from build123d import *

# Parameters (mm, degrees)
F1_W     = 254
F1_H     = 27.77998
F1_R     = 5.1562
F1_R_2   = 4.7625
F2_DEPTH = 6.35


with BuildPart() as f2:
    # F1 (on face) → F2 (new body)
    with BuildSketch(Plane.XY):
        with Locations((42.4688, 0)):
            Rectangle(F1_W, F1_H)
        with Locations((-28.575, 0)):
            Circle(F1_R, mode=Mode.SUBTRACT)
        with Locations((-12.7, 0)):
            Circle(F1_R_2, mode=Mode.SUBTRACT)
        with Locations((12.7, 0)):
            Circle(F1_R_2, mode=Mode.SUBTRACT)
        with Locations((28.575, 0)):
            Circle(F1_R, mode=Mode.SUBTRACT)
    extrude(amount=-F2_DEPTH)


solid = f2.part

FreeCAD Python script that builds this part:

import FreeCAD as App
import Part
import Sketcher
from FreeCAD import Vector
Q = App.Units.Quantity

doc = App.newDocument("Part")
body = doc.addObject("PartDesign::Body", "Body")

sketch1 = body.newObject("Sketcher::SketchObject", "Sketch")
sketch1.AttachmentSupport = (doc.getObject("XY_Plane"), [""])
sketch1.MapMode = "FlatFace"
sketch1.addGeometry(Part.LineSegment(Vector(-84.5312, 13.88999, 0), Vector(-84.5312, -13.88999, 0)), False)
sketch1.addGeometry(Part.LineSegment(Vector(-84.5312, -13.88999, 0), Vector(169.4688, -13.88999, 0)), False)
sketch1.addGeometry(Part.LineSegment(Vector(169.4688, -13.88999, 0), Vector(169.4688, 13.88999, 0)), False)
sketch1.addGeometry(Part.LineSegment(Vector(169.4688, 13.88999, 0), Vector(-84.5312, 13.88999, 0)), False)
sketch1.addGeometry(Part.Circle(Vector(-28.575, 0, 0), Vector(0, 0, 1), 5.1562), False)
sketch1.addGeometry(Part.Circle(Vector(-12.7, 0, 0), Vector(0, 0, 1), 4.7625), False)
sketch1.addGeometry(Part.Circle(Vector(12.7, 0, 0), Vector(0, 0, 1), 4.7625), False)
sketch1.addGeometry(Part.Circle(Vector(28.575, 0, 0), Vector(0, 0, 1), 5.1562), False)
sketch1.addConstraint(Sketcher.Constraint("Coincident", 0, 2, 1, 1))
sketch1.addConstraint(Sketcher.Constraint("Coincident", 1, 2, 2, 1))
sketch1.addConstraint(Sketcher.Constraint("Coincident", 2, 2, 3, 1))
sketch1.addConstraint(Sketcher.Constraint("Coincident", 3, 2, 0, 1))
sketch1.addConstraint(Sketcher.Constraint("Vertical", 0))
sketch1.addConstraint(Sketcher.Constraint("Horizontal", 1))
sketch1.addConstraint(Sketcher.Constraint("Vertical", 2))
sketch1.addConstraint(Sketcher.Constraint("Horizontal", 3))
sketch1.addConstraint(Sketcher.Constraint("Equal", 5, 6))
sketch1.addConstraint(Sketcher.Constraint("Equal", 4, 7))
sketch1.addConstraint(Sketcher.Constraint("Symmetric", 5, 3, 6, 3, -1, 1))
sketch1.addConstraint(Sketcher.Constraint("Symmetric", 4, 3, 7, 3, -1, 1))
sketch1.addConstraint(Sketcher.Constraint("PointOnObject", 4, 3, -1))
sketch1.addConstraint(Sketcher.Constraint("PointOnObject", 5, 3, -1))
sketch1.addConstraint(Sketcher.Constraint("DistanceX", 1, 1, 1, 2, Q("10 in")))
sketch1.addConstraint(Sketcher.Constraint("Diameter", 4, Q("0.406 in")))
sketch1.addConstraint(Sketcher.Constraint("Diameter", 5, Q("0.375 in")))
sketch1.addConstraint(Sketcher.Constraint("DistanceX", 5, 3, 6, 3, Q("1 in")))
sketch1.addConstraint(Sketcher.Constraint("DistanceX", 4, 3, 7, 3, Q("2.25 in")))
sketch1.addConstraint(Sketcher.Constraint("DistanceY", 0, 2, 0, 1, Q("1.0937 in")))
sketch1.addConstraint(Sketcher.Constraint("DistanceX", 0, 2, -1, 1, Q("3.328 in")))
sketch1.addConstraint(Sketcher.Constraint("DistanceY", 0, 2, -1, 1, 13.88999))
pad1 = body.newObject("PartDesign::Pad", "Pad")
pad1.Profile = sketch1
pad1.Length = Q("0.25 in")
pad1.Reversed = True

doc.recompute()
